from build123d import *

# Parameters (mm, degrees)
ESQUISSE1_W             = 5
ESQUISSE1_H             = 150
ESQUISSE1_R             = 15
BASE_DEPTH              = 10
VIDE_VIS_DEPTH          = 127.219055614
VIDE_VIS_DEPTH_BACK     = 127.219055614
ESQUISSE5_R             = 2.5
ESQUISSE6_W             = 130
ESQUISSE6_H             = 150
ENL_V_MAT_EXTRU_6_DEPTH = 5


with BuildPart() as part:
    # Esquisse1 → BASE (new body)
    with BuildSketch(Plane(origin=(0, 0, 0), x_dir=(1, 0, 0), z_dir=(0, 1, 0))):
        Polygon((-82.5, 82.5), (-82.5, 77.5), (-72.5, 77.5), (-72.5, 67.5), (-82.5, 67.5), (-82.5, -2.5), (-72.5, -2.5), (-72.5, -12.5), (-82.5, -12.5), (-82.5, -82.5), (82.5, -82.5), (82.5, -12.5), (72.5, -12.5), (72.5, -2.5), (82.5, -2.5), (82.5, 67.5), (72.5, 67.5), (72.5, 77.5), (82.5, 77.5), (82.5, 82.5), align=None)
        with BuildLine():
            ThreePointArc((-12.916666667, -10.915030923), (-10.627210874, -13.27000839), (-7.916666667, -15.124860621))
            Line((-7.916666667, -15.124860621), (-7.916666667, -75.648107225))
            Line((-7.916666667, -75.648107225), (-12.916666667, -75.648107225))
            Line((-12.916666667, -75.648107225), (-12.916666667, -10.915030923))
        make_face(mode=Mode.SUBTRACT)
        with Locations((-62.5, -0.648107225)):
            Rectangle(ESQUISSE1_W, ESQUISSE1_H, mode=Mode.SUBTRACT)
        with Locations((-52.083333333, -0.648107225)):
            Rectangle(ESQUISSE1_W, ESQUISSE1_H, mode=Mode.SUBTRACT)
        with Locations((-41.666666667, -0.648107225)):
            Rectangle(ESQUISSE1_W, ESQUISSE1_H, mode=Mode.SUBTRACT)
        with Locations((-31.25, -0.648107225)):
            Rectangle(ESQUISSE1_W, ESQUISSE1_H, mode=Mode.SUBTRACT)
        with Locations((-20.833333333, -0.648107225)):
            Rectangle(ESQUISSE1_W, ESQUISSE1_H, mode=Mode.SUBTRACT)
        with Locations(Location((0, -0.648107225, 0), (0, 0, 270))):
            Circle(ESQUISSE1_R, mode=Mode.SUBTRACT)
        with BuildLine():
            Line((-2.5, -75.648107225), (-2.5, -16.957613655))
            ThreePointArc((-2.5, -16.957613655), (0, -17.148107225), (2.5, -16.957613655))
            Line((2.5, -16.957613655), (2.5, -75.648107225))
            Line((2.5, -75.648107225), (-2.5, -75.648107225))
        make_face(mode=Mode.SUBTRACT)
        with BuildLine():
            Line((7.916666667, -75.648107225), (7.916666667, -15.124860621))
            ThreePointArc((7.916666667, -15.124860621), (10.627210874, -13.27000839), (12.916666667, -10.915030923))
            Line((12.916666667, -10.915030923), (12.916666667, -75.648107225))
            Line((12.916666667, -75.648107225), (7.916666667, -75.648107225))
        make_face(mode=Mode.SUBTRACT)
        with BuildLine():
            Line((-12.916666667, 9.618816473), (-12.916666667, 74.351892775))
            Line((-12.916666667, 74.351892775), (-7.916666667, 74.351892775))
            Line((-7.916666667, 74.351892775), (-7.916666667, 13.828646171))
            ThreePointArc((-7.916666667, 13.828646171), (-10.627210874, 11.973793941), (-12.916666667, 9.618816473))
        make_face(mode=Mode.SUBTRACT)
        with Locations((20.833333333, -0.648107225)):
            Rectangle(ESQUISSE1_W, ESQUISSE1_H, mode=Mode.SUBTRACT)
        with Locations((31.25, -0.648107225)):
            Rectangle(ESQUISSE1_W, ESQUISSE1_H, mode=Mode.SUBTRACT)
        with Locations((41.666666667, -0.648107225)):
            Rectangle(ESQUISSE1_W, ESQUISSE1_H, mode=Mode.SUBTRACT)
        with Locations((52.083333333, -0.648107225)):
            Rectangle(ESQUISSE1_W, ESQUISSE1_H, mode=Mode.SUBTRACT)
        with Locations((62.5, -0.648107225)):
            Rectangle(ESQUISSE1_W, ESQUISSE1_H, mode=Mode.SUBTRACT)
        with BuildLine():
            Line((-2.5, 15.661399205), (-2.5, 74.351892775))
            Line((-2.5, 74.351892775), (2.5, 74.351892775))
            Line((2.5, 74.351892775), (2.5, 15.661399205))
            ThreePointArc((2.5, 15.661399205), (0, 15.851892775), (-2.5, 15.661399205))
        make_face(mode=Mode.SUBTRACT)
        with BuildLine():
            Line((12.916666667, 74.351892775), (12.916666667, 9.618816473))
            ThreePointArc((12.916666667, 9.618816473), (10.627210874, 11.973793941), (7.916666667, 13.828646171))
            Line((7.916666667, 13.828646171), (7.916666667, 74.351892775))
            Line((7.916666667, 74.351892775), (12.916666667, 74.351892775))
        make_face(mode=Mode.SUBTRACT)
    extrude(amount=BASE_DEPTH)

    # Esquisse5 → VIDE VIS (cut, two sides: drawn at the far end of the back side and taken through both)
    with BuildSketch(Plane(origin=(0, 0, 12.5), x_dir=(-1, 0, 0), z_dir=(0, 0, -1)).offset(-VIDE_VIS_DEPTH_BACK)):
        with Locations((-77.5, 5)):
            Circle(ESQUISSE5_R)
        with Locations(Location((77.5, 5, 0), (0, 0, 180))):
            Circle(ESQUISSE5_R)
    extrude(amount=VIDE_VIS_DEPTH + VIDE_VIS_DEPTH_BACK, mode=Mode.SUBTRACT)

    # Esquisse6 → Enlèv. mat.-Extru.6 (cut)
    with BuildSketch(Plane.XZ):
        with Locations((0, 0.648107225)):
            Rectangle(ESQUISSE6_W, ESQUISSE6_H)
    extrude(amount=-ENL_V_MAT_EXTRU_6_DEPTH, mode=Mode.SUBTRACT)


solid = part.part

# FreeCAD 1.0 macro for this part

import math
import FreeCAD as App
import Part
import Sketcher

V = App.Vector


def add_polygon(sketch, points):
    """Adds a closed chain of lines whose ends are joined by coincident constraints."""
    first, n = sketch.GeometryCount, len(points)
    for a, b in zip(points, points[1:] + points[:1]):
        sketch.addGeometry(Part.LineSegment(App.Vector(*a, 0), App.Vector(*b, 0)), False)
    for i in range(n):
        sketch.addConstraint(Sketcher.Constraint("Coincident", first + i, 2, first + (i + 1) % n, 1))

doc = App.newDocument("Part")
body = doc.addObject("PartDesign::Body", "Body")

sketch1 = doc.addObject("Sketcher::SketchObject", "Sketch")
body.addObject(sketch1)
sketch1.AttachmentSupport = (doc.XZ_Plane, [""])
sketch1.MapMode = "FlatFace"
add_polygon(sketch1, [(-82.5, -82.5), (-82.5, -77.5), (-72.5, -77.5), (-72.5, -67.5), (-82.5, -67.5), (-82.5, 2.5), (-72.5, 2.5), (-72.5, 12.5), (-82.5, 12.5), (-82.5, 82.5), (82.5, 82.5), (82.5, 12.5), (72.5, 12.5), (72.5, 2.5), (82.5, 2.5), (82.5, -67.5), (72.5, -67.5), (72.5, -77.5), (82.5, -77.5), (82.5, -82.5)])
sketch1.addGeometry(Part.LineSegment(V(-12.9, 75.6, 0), V(-12.9, 10.9, 0)), False)
sketch1.addGeometry(Part.ArcOfCircle(Part.Circle(V(0, 0.6, 0), V(0, 0, 1), 16.5), math.radians(119), math.radians(142)), False)
sketch1.addGeometry(Part.LineSegment(V(-7.9, 15.1, 0), V(-7.9, 75.6, 0)), False)
sketch1.addGeometry(Part.LineSegment(V(-7.9, 75.6, 0), V(-12.9, 75.6, 0)), False)
sketch1.addGeometry(Part.LineSegment(V(2.5, 75.6, 0), V(-2.5, 75.6, 0)), False)
sketch1.addGeometry(Part.LineSegment(V(-2.5, 75.6, 0), V(-2.5, 17, 0)), False)
sketch1.addGeometry(Part.ArcOfCircle(Part.Circle(V(0, 0.6, 0), V(0, 0, 1), 16.5), math.radians(81.29), math.radians(98.71)), False)
sketch1.addGeometry(Part.LineSegment(V(2.5, 17, 0), V(2.5, 75.6, 0)), False)
sketch1.addGeometry(Part.LineSegment(V(12.9, 75.6, 0), V(7.9, 75.6, 0)), False)
sketch1.addGeometry(Part.LineSegment(V(7.9, 75.6, 0), V(7.9, 15.1, 0)), False)
sketch1.addGeometry(Part.ArcOfCircle(Part.Circle(V(0, 0.6, 0), V(0, 0, 1), 16.5), math.radians(38), math.radians(61)), False)
sketch1.addGeometry(Part.LineSegment(V(12.9, 10.9, 0), V(12.9, 75.6, 0)), False)
add_polygon(sketch1, [(-60, 75.6), (-65, 75.6), (-65, -74.4), (-60, -74.4)])
add_polygon(sketch1, [(-49.6, 75.6), (-54.6, 75.6), (-54.6, -74.4), (-49.6, -74.4)])
add_polygon(sketch1, [(-39.2, 75.6), (-44.2, 75.6), (-44.2, -74.4), (-39.2, -74.4)])
add_polygon(sketch1, [(-28.8, 75.6), (-33.8, 75.6), (-33.8, -74.4), (-28.8, -74.4)])
add_polygon(sketch1, [(-18.3, 75.6), (-23.3, 75.6), (-23.3, -74.4), (-18.3, -74.4)])
sketch1.addGeometry(Part.ArcOfCircle(Part.Circle(V(0, 0.6, 0), V(0, 0, 1), 16.5), math.radians(-142), math.radians(-119)), False)
sketch1.addGeometry(Part.LineSegment(V(-12.9, -9.6, 0), V(-12.9, -74.4, 0)), False)
sketch1.addGeometry(Part.LineSegment(V(-12.9, -74.4, 0), V(-7.9, -74.4, 0)), False)
sketch1.addGeometry(Part.LineSegment(V(-7.9, -74.4, 0), V(-7.9, -13.8, 0)), False)
sketch1.addGeometry(Part.Circle(V(0, 0.6, 0), V(0, 0, 1), 15), False)
add_polygon(sketch1, [(23.3, 75.6), (18.3, 75.6), (18.3, -74.4), (23.3, -74.4)])
add_polygon(sketch1, [(33.8, 75.6), (28.8, 75.6), (28.8, -74.4), (33.8, -74.4)])
add_polygon(sketch1, [(44.2, 75.6), (39.2, 75.6), (39.2, -74.4), (44.2, -74.4)])
add_polygon(sketch1, [(54.6, 75.6), (49.6, 75.6), (49.6, -74.4), (54.6, -74.4)])
add_polygon(sketch1, [(65, 75.6), (60, 75.6), (60, -74.4), (65, -74.4)])
sketch1.addGeometry(Part.ArcOfCircle(Part.Circle(V(0, 0.6, 0), V(0, 0, 1), 16.5), math.radians(-98.71), math.radians(-81.29)), False)
sketch1.addGeometry(Part.LineSegment(V(-2.5, -15.7, 0), V(-2.5, -74.4, 0)), False)
sketch1.addGeometry(Part.LineSegment(V(-2.5, -74.4, 0), V(2.5, -74.4, 0)), False)
sketch1.addGeometry(Part.LineSegment(V(2.5, -74.4, 0), V(2.5, -15.7, 0)), False)
sketch1.addGeometry(Part.LineSegment(V(7.9, -74.4, 0), V(12.9, -74.4, 0)), False)
sketch1.addGeometry(Part.LineSegment(V(12.9, -74.4, 0), V(12.9, -9.6, 0)), False)
sketch1.addGeometry(Part.ArcOfCircle(Part.Circle(V(0, 0.6, 0), V(0, 0, 1), 16.5), math.radians(-61), math.radians(-38)), False)
sketch1.addGeometry(Part.LineSegment(V(7.9, -13.8, 0), V(7.9, -74.4, 0)), False)
sketch1.addConstraint([
    Sketcher.Constraint("Coincident", 20, 2, 21, 2),
    Sketcher.Constraint("Coincident", 21, 1, 22, 1),
    Sketcher.Constraint("Coincident", 22, 2, 23, 1),
    Sketcher.Constraint("Coincident", 23, 2, 20, 1),
    Sketcher.Constraint("Coincident", 24, 2, 25, 1),
    Sketcher.Constraint("Coincident", 25, 2, 26, 2),
    Sketcher.Constraint("Coincident", 26, 1, 27, 1),
    Sketcher.Constraint("Coincident", 27, 2, 24, 1),
    Sketcher.Constraint("Coincident", 28, 2, 29, 1),
    Sketcher.Constraint("Coincident", 29, 2, 30, 2),
    Sketcher.Constraint("Coincident", 30, 1, 31, 1),
    Sketcher.Constraint("Coincident", 31, 2, 28, 1),
    Sketcher.Constraint("Coincident", 52, 1, 53, 1),
    Sketcher.Constraint("Coincident", 53, 2, 54, 1),
    Sketcher.Constraint("Coincident", 54, 2, 55, 1),
    Sketcher.Constraint("Coincident", 55, 2, 52, 2),
    Sketcher.Constraint("Coincident", 77, 1, 78, 1),
    Sketcher.Constraint("Coincident", 78, 2, 79, 1),
    Sketcher.Constraint("Coincident", 79, 2, 80, 1),
    Sketcher.Constraint("Coincident", 80, 2, 77, 2),
    Sketcher.Constraint("Coincident", 81, 2, 82, 1),
    Sketcher.Constraint("Coincident", 82, 2, 83, 2),
    Sketcher.Constraint("Coincident", 83, 1, 84, 1),
    Sketcher.Constraint("Coincident", 84, 2, 81, 1),
    Sketcher.Constraint("Vertical", 0),
    Sketcher.Constraint("Horizontal", 1),
    Sketcher.Constraint("Vertical", 2),
    Sketcher.Constraint("Horizontal", 3),
    Sketcher.Constraint("Vertical", 4),
    Sketcher.Constraint("Horizontal", 5),
    Sketcher.Constraint("Vertical", 6),
    Sketcher.Constraint("Horizontal", 7),
    Sketcher.Constraint("Vertical", 8),
    Sketcher.Constraint("Horizontal", 9),
    Sketcher.Constraint("Vertical", 10),
    Sketcher.Constraint("Horizontal", 11),
    Sketcher.Constraint("Vertical", 12),
    Sketcher.Constraint("Horizontal", 13),
    Sketcher.Constraint("Vertical", 14),
    Sketcher.Constraint("Horizontal", 15),
    Sketcher.Constraint("Vertical", 16),
    Sketcher.Constraint("Horizontal", 17),
    Sketcher.Constraint("Vertical", 18),
    Sketcher.Constraint("Horizontal", 19),
    Sketcher.Constraint("Vertical", 20),
    Sketcher.Constraint("Vertical", 22),
    Sketcher.Constraint("Horizontal", 23),
    Sketcher.Constraint("Horizontal", 24),
    Sketcher.Constraint("Vertical", 25),
    Sketcher.Constraint("Vertical", 27),
    Sketcher.Constraint("Horizontal", 28),
    Sketcher.Constraint("Vertical", 29),
    Sketcher.Constraint("Vertical", 31),
    Sketcher.Constraint("Horizontal", 32),
    Sketcher.Constraint("Vertical", 33),
    Sketcher.Constraint("Horizontal", 34),
    Sketcher.Constraint("Vertical", 35),
    Sketcher.Constraint("Horizontal", 36),
    Sketcher.Constraint("Vertical", 37),
    Sketcher.Constraint("Horizontal", 38),
    Sketcher.Constraint("Vertical", 39),
    Sketcher.Constraint("Horizontal", 40),
    Sketcher.Constraint("Vertical", 41),
    Sketcher.Constraint("Horizontal", 42),
    Sketcher.Constraint("Vertical", 43),
    Sketcher.Constraint("Horizontal", 44),
    Sketcher.Constraint("Vertical", 45),
    Sketcher.Constraint("Horizontal", 46),
    Sketcher.Constraint("Vertical", 47),
    Sketcher.Constraint("Horizontal", 48),
    Sketcher.Constraint("Vertical", 49),
    Sketcher.Constraint("Horizontal", 50),
    Sketcher.Constraint("Vertical", 51),
    Sketcher.Constraint("Vertical", 53),
    Sketcher.Constraint("Horizontal", 54),
    Sketcher.Constraint("Vertical", 55),
    Sketcher.Constraint("Horizontal", 57),
    Sketcher.Constraint("Vertical", 58),
    Sketcher.Constraint("Horizontal", 59),
    Sketcher.Constraint("Vertical", 60),
    Sketcher.Constraint("Horizontal", 61),
    Sketcher.Constraint("Vertical", 62),
    Sketcher.Constraint("Horizontal", 63),
    Sketcher.Constraint("Vertical", 64),
    Sketcher.Constraint("Horizontal", 65),
    Sketcher.Constraint("Vertical", 66),
    Sketcher.Constraint("Horizontal", 67),
    Sketcher.Constraint("Vertical", 68),
    Sketcher.Constraint("Horizontal", 69),
    Sketcher.Constraint("Vertical", 70),
    Sketcher.Constraint("Horizontal", 71),
    Sketcher.Constraint("Vertical", 72),
    Sketcher.Constraint("Horizontal", 73),
    Sketcher.Constraint("Vertical", 74),
    Sketcher.Constraint("Horizontal", 75),
    Sketcher.Constraint("Vertical", 76),
    Sketcher.Constraint("Vertical", 78),
    Sketcher.Constraint("Horizontal", 79),
    Sketcher.Constraint("Vertical", 80),
    Sketcher.Constraint("Horizontal", 81),
    Sketcher.Constraint("Vertical", 82),
    Sketcher.Constraint("Vertical", 84),
    Sketcher.Constraint("Coincident", 26, 3, 21, 3),
    Sketcher.Constraint("Coincident", 30, 3, 21, 3),
    Sketcher.Constraint("Coincident", 52, 3, 21, 3),
    Sketcher.Constraint("Coincident", 56, 3, 21, 3),
    Sketcher.Constraint("Coincident", 77, 3, 21, 3),
    Sketcher.Constraint("Coincident", 83, 3, 21, 3),
    Sketcher.Constraint("Equal", 21, 26),
    Sketcher.Constraint("Equal", 26, 30),
    Sketcher.Constraint("Equal", 30, 52),
    Sketcher.Constraint("Equal", 52, 77),
    Sketcher.Constraint("Equal", 77, 83),
    Sketcher.Constraint("Symmetric", 8, 2, 18, 2, -1, 1),
    Sketcher.Constraint("Symmetric", 7, 2, 10, 2, -2),
    Sketcher.Constraint("Symmetric", 5, 2, 12, 2, -2),
    Sketcher.Constraint("Symmetric", 3, 2, 14, 2, -2),
    Sketcher.Constraint("Symmetric", 1, 2, 16, 2, -2),
    Sketcher.Constraint("Symmetric", 25, 2, 26, 1, -2),
    Sketcher.Constraint("Symmetric", 22, 2, 28, 2, -2),
    Sketcher.Constraint("Symmetric", 51, 2, 57, 2, -2),
    Sketcher.Constraint("Symmetric", 49, 2, 59, 2, -2),
    Sketcher.Constraint("Symmetric", 47, 2, 61, 2, -2),
    Sketcher.Constraint("Symmetric", 45, 2, 63, 2, -2),
    Sketcher.Constraint("Symmetric", 43, 2, 65, 2, -2),
    Sketcher.Constraint("Symmetric", 41, 2, 67, 2, -2),
    Sketcher.Constraint("Symmetric", 39, 2, 69, 2, -2),
    Sketcher.Constraint("Symmetric", 37, 2, 71, 2, -2),
    Sketcher.Constraint("Symmetric", 35, 2, 73, 2, -2),
    Sketcher.Constraint("Symmetric", 33, 2, 75, 2, -2),
    Sketcher.Constraint("Symmetric", 53, 2, 81, 2, -2),
    Sketcher.Constraint("Horizontal", 23, 2, 24, 2),
    Sketcher.Constraint("Horizontal", 20, 2, 30, 1),
    Sketcher.Constraint("Horizontal", 31, 2, 32, 2),
    Sketcher.Constraint("Horizontal", 35, 2, 36, 2),
    Sketcher.Constraint("Horizontal", 34, 2, 37, 2),
    Sketcher.Constraint("Horizontal", 39, 2, 40, 2),
    Sketcher.Constraint("Horizontal", 38, 2, 41, 2),
    Sketcher.Constraint("Horizontal", 43, 2, 44, 2),
    Sketcher.Constraint("Horizontal", 42, 2, 45, 2),
    Sketcher.Constraint("Horizontal", 47, 2, 48, 2),
    Sketcher.Constraint("Horizontal", 46, 2, 49, 2),
    Sketcher.Constraint("Horizontal", 50, 2, 53, 2),
    Sketcher.Constraint("Horizontal", 75, 2, 78, 2),
    Sketcher.Constraint("Horizontal", 77, 1, 80, 2),
    Sketcher.Constraint("Horizontal", 55, 2, 83, 1),
    Sketcher.Constraint("Vertical", 0, 2, 3, 2),
    Sketcher.Constraint("Vertical", 2, 2, 5, 2),
    Sketcher.Constraint("Vertical", 4, 2, 7, 2),
    Sketcher.Constraint("Vertical", 23, 2, 52, 1),
    Sketcher.Constraint("Vertical", 22, 2, 54, 2),
    Sketcher.Constraint("Vertical", 25, 2, 77, 1),
    Sketcher.Constraint("Equal", 23, 24),
    Sketcher.Constraint("Equal", 28, 32),
    Sketcher.Constraint("Equal", 34, 36),
    Sketcher.Constraint("Equal", 38, 40),
    Sketcher.Constraint("Equal", 42, 44),
    Sketcher.Constraint("Equal", 46, 48),
    Sketcher.Constraint("Equal", 81, 0),
    Sketcher.Constraint("Equal", 17, 2),
    Sketcher.Constraint("Equal", 2, 6),
    Sketcher.Constraint("Equal", 4, 8),
    Sketcher.Constraint("Equal", 31, 53),
    Sketcher.Constraint("Diameter", 56, 30.0),
    Sketcher.Constraint("Radius", 21, 16.5),
    Sketcher.Constraint("DistanceX", 1, 1, 1, 2, 10.0),
    Sketcher.Constraint("DistanceX", 9, 1, 9, 2, 165.0),
    Sketcher.Constraint("DistanceX", 23, 2, 23, 1, 5.0),
    Sketcher.Constraint("DistanceY", 4, 1, 4, 2, 70.0),
    Sketcher.Constraint("DistanceY", 33, 2, 33, 1, 150.0),
    Sketcher.Constraint("DistanceX", 32, 2, -1, 1, 65.0),
    Sketcher.Constraint("DistanceX", 44, 2, -1, 1, 33.75),
    Sketcher.Constraint("DistanceY", 77, 1, -1, 1, 15.661399),
    Sketcher.Constraint("DistanceY", 20, 2, 20, 1, 64.733076),
    Sketcher.Constraint("DistanceX", 36, 2, -1, 1, 54.583333),
    Sketcher.Constraint("DistanceX", 40, 2, -1, 1, 44.166667),
    Sketcher.Constraint("DistanceX", 48, 2, -1, 1, 23.333333),
])
pad1 = doc.addObject("PartDesign::Pad", "Pad")
body.addObject(pad1)
pad1.Profile = sketch1
pad1.Length = 10
pad1.Reversed = True

sketch2 = doc.addObject("Sketcher::SketchObject", "Sketch001")
body.addObject(sketch2)
sketch2.AttachmentSupport = (doc.XY_Plane, [""])
sketch2.MapMode = "FlatFace"
sketch2.AttachmentOffset = App.Placement(V(0, 0, 12.5), App.Rotation())
sketch2.addGeometry([
    Part.Circle(V(77.5, 5, 0), V(0, 0, 1), 2.5),
    Part.Circle(V(-77.5, 5, 0), V(0, 0, 1), 2.5),
], False)
sketch2.addConstraint([
    Sketcher.Constraint("Equal", 0, 1),
    Sketcher.Constraint("Symmetric", 0, 3, 1, 3, -2),
    Sketcher.Constraint("Diameter", 0, 5.0),
    Sketcher.Constraint("DistanceY", -1, 1, 0, 3, 5.0),
    Sketcher.Constraint("DistanceX", 1, 3, 0, 3, 155.0),
])
pocket1 = doc.addObject("PartDesign::Pocket", "Pocket")
body.addObject(pocket1)
pocket1.Profile = sketch2
pocket1.Type = "ThroughAll"
pocket1.Midplane = True

sketch3 = doc.addObject("Sketcher::SketchObject", "Sketch002")
body.addObject(sketch3)
sketch3.AttachmentSupport = (doc.XZ_Plane, [""])
sketch3.MapMode = "FlatFace"
add_polygon(sketch3, [(-65, 76), (-65, -74), (65, -74), (65, 76)])
sketch3.addConstraint([
    Sketcher.Constraint("Vertical", 0),
    Sketcher.Constraint("Horizontal", 1),
    Sketcher.Constraint("Vertical", 2),
    Sketcher.Constraint("Horizontal", 3),
    Sketcher.Constraint("DistanceX", 1, 1, 1, 2, 130.0),
    Sketcher.Constraint("DistanceY", 0, 2, 0, 1, 150.0),
    Sketcher.Constraint("DistanceX", 0, 2, -1, 1, 65.0),
    Sketcher.Constraint("DistanceY", 0, 2, -1, 1, 74.351893),
])
pocket2 = doc.addObject("PartDesign::Pocket", "Pocket001")
body.addObject(pocket2)
pocket2.Profile = sketch3
pocket2.Length = 5

doc.recompute()
